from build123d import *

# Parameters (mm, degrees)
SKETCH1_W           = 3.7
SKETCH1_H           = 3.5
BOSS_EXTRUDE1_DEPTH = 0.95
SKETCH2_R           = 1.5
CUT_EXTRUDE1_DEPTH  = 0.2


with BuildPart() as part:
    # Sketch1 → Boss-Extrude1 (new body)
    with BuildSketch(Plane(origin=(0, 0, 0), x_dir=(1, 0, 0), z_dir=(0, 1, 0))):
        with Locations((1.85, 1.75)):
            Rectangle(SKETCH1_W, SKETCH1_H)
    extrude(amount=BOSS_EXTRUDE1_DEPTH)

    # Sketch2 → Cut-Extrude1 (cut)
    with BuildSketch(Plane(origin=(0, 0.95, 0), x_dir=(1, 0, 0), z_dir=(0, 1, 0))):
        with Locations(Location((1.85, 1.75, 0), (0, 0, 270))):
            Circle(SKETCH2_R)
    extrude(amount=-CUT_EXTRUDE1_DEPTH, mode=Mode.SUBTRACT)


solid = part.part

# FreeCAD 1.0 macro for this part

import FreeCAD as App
import Part
import Sketcher
from FreeCAD import Vector
Q = App.Units.Quantity

doc = App.newDocument("Part")
body = doc.addObject("PartDesign::Body", "Body")

# Sketch on XZ plane
sketch1 = body.newObject("Sketcher::SketchObject", "Sketch")
sketch1.AttachmentSupport = (doc.getObject("XZ_Plane"), [""])
sketch1.MapMode = "FlatFace"
sketch1.addGeometry(Part.LineSegment(Vector(0, -3.5, 0), Vector(0, 0, 0)), False)
sketch1.addGeometry(Part.LineSegment(Vector(0, 0, 0), Vector(3.7, 0, 0)), False)
sketch1.addGeometry(Part.LineSegment(Vector(3.7, 0, 0), Vector(3.7, -3.5, 0)), False)
sketch1.addGeometry(Part.LineSegment(Vector(3.7, -3.5, 0), Vector(0, -3.5, 0)), False)
sketch1.addConstraint(Sketcher.Constraint("Coincident", 0, 2, 1, 1))
sketch1.addConstraint(Sketcher.Constraint("Coincident", 1, 2, 2, 1))
sketch1.addConstraint(Sketcher.Constraint("Coincident", 2, 2, 3, 1))
sketch1.addConstraint(Sketcher.Constraint("Coincident", 3, 2, 0, 1))
sketch1.addConstraint(Sketcher.Constraint("Vertical", 0))
sketch1.addConstraint(Sketcher.Constraint("Horizontal", 1))
sketch1.addConstraint(Sketcher.Constraint("Vertical", 2))
sketch1.addConstraint(Sketcher.Constraint("Horizontal", 3))
sketch1.addConstraint(Sketcher.Constraint("Coincident", 0, 2, -1, 1))
sketch1.addConstraint(Sketcher.Constraint("DistanceX", 1, 1, 1, 2, Q("3.7 mm")))
sketch1.addConstraint(Sketcher.Constraint("DistanceY", 0, 1, 0, 2, Q("3.5 mm")))
pad1 = body.newObject("PartDesign::Pad", "Pad")
pad1.Profile = sketch1
pad1.Length = 0.95
pad1.Reversed = True

# Sketch on XZ plane
sketch2 = body.newObject("Sketcher::SketchObject", "Sketch001")
sketch2.AttachmentSupport = (doc.getObject("XZ_Plane"), [""])
sketch2.MapMode = "FlatFace"
sketch2.AttachmentOffset = App.Placement(Vector(0, 0, -0.95), App.Rotation())
sketch2.addGeometry(Part.Circle(Vector(1.9, -1.8, 0), Vector(0, 0, 1), 1.5), False)
sketch2.addConstraint(Sketcher.Constraint("Diameter", 0, Q("3 mm")))
sketch2.addConstraint(Sketcher.Constraint("DistanceX", -1, 1, 0, 3, Q("1.85 mm")))
sketch2.addConstraint(Sketcher.Constraint("DistanceY", 0, 3, -1, 1, Q("1.75 mm")))
pocket1 = body.newObject("PartDesign::Pocket", "Pocket")
pocket1.Profile = sketch2
pocket1.Length = 0.2
pocket1.Reversed = True

doc.recompute()
